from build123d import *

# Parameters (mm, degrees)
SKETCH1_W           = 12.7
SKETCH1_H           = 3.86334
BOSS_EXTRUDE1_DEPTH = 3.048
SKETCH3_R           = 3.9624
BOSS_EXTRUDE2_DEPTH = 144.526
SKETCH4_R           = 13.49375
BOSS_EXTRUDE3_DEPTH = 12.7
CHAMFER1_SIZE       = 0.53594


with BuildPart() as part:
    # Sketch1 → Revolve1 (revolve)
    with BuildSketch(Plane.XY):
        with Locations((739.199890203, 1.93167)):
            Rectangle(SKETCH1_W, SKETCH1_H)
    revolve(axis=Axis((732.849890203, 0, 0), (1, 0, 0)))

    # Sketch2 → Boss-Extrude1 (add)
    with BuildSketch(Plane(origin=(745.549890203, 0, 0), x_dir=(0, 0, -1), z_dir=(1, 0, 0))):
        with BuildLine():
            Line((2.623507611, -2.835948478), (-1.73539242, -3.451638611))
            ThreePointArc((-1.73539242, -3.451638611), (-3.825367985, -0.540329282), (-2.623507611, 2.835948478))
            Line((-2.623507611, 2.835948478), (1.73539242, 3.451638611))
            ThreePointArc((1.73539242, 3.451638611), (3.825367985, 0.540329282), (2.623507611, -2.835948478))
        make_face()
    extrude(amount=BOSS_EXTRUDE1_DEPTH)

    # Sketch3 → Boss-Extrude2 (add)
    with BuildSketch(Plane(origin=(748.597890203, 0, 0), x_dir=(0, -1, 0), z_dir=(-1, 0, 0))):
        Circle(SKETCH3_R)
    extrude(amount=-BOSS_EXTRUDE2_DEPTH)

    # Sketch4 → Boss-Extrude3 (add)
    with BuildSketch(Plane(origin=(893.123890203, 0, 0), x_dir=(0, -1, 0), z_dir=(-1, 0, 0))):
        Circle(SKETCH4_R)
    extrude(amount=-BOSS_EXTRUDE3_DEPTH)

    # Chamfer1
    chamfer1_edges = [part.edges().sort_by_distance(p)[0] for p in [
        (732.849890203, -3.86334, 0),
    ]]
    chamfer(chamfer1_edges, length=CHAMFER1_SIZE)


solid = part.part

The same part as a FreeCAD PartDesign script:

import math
import FreeCAD as App
import Part
import Sketcher
from FreeCAD import Vector
Q = App.Units.Quantity


def edges_at(feature, points):
    """Names of the edges that pass closest to the given points."""
    edges = feature.Shape.Edges
    near = lambda p: min(range(len(edges)), key=lambda i: edges[i].distToShape(Part.Vertex(*p))[0])
    return sorted({f"Edge{near(p) + 1}" for p in points})


def add_polygon(sketch, points):
    """Adds a closed chain of lines whose ends are joined by coincident constraints."""
    first, n = sketch.GeometryCount, len(points)
    for a, b in zip(points, points[1:] + points[:1]):
        sketch.addGeometry(Part.LineSegment(App.Vector(*a, 0), App.Vector(*b, 0)), False)
    for i in range(n):
        sketch.addConstraint(Sketcher.Constraint("Coincident", first + i, 2, first + (i + 1) % n, 1))

doc = App.newDocument("Part")
body = doc.addObject("PartDesign::Body", "Body")

# Sketch on XY plane
sketch1 = doc.addObject("Sketcher::SketchObject", "Sketch")
body.addObject(sketch1)
sketch1.AttachmentSupport = (doc.XY_Plane, [""])
sketch1.MapMode = "FlatFace"
add_polygon(sketch1, [(732.8, 3.9), (732.8, 0), (745.5, 0), (745.5, 3.9)])  # lines 0-3
sketch1.addConstraint([
    Sketcher.Constraint("Vertical", 0),
    Sketcher.Constraint("Horizontal", 1),
    Sketcher.Constraint("Vertical", 2),
    Sketcher.Constraint("Horizontal", 3),
    Sketcher.Constraint("PointOnObject", 0, 2, -1),
    Sketcher.Constraint("DistanceX", 1, 1, 1, 2, Q("0.5 in")),
    Sketcher.Constraint("DistanceY", 0, 2, 0, 1, Q("0.1521 in")),
    Sketcher.Constraint("DistanceX", -1, 1, 0, 2, Q("732.84989 mm")),
])
revolution = doc.addObject("PartDesign::Revolution", "Revolution")
body.addObject(revolution)
revolution.Profile = sketch1
revolution.ReferenceAxis = (sketch1, ["H_Axis"])
revolution.Angle = 360

# Sketch on YZ plane
sketch2 = doc.addObject("Sketcher::SketchObject", "Sketch001")
body.addObject(sketch2)
sketch2.AttachmentSupport = (doc.YZ_Plane, [""])
sketch2.MapMode = "FlatFace"
sketch2.AttachmentOffset = App.Placement(Vector(0, 0, 745.54989), App.Rotation())
sketch2.addGeometry([
    Part.LineSegment(Vector(-3.5, 1.7, 0), Vector(-2.8, -2.6, 0)),
    Part.ArcOfCircle(Part.Circle(Vector(0, 0, 0), Vector(0, 0, 1), 3.9), math.radians(-137), math.radians(-27)),
    Part.LineSegment(Vector(3.5, -1.7, 0), Vector(2.8, 2.6, 0)),
    Part.ArcOfCircle(Part.Circle(Vector(0, 0, 0), Vector(0, 0, 1), 3.9), math.radians(43), math.radians(153)),
], False)
sketch2.addConstraint([
    Sketcher.Constraint("Coincident", 0, 2, 1, 1),
    Sketcher.Constraint("Coincident", 1, 2, 2, 1),
    Sketcher.Constraint("Coincident", 2, 2, 3, 1),
    Sketcher.Constraint("Coincident", 3, 2, 0, 1),
    Sketcher.Constraint("Coincident", 1, 3, -1, 1),
    Sketcher.Constraint("Coincident", 3, 3, -1, 1),
    Sketcher.Constraint("Equal", 1, 3),
    Sketcher.Constraint("Parallel", 0, 2),
    Sketcher.Constraint("Equal", 0, 2),
    Sketcher.Constraint("Radius", 1, Q("0.1521 in")),
    Sketcher.Constraint("DistanceY", 1, 2, 2, 2, Q("4.3589 mm")),
    Sketcher.Constraint("Distance", 0, Q("4.402168 mm")),
])
pad1 = doc.addObject("PartDesign::Pad", "Pad")
body.addObject(pad1)
pad1.Profile = sketch2
pad1.Length = Q("0.12 in")

# Sketch on YZ plane
sketch3 = doc.addObject("Sketcher::SketchObject", "Sketch002")
body.addObject(sketch3)
sketch3.AttachmentSupport = (doc.YZ_Plane, [""])
sketch3.MapMode = "FlatFace"
sketch3.AttachmentOffset = App.Placement(Vector(0, 0, 748.59789), App.Rotation())
sketch3.addGeometry(Part.Circle(Vector(0, 0, 0), Vector(0, 0, 1), 4), False)
sketch3.addConstraint([
    Sketcher.Constraint("Coincident", 0, 3, -1, 1),
    Sketcher.Constraint("Diameter", 0, Q("0.312 in")),
])
pad2 = doc.addObject("PartDesign::Pad", "Pad001")
body.addObject(pad2)
pad2.Profile = sketch3
pad2.Length = Q("5.69 in")

# Sketch on YZ plane
sketch4 = doc.addObject("Sketcher::SketchObject", "Sketch003")
body.addObject(sketch4)
sketch4.AttachmentSupport = (doc.YZ_Plane, [""])
sketch4.MapMode = "FlatFace"
sketch4.AttachmentOffset = App.Placement(Vector(0, 0, 893.12389), App.Rotation())
sketch4.addGeometry(Part.Circle(Vector(0, 0, 0), Vector(0, 0, 1), 13), False)
sketch4.addConstraint([
    Sketcher.Constraint("Coincident", 0, 3, -1, 1),
    Sketcher.Constraint("Diameter", 0, Q("1.0625 in")),
])
pad3 = doc.addObject("PartDesign::Pad", "Pad002")
body.addObject(pad3)
pad3.Profile = sketch4
pad3.Length = Q("0.5 in")
doc.recompute()

chamfer = doc.addObject("PartDesign::Chamfer", "Chamfer")
body.addObject(chamfer)
chamfer.Base = (pad3, edges_at(pad3, [(732.85, -3.863, 0)]))
chamfer.Size = Q("0.0211 in")

doc.recompute()
